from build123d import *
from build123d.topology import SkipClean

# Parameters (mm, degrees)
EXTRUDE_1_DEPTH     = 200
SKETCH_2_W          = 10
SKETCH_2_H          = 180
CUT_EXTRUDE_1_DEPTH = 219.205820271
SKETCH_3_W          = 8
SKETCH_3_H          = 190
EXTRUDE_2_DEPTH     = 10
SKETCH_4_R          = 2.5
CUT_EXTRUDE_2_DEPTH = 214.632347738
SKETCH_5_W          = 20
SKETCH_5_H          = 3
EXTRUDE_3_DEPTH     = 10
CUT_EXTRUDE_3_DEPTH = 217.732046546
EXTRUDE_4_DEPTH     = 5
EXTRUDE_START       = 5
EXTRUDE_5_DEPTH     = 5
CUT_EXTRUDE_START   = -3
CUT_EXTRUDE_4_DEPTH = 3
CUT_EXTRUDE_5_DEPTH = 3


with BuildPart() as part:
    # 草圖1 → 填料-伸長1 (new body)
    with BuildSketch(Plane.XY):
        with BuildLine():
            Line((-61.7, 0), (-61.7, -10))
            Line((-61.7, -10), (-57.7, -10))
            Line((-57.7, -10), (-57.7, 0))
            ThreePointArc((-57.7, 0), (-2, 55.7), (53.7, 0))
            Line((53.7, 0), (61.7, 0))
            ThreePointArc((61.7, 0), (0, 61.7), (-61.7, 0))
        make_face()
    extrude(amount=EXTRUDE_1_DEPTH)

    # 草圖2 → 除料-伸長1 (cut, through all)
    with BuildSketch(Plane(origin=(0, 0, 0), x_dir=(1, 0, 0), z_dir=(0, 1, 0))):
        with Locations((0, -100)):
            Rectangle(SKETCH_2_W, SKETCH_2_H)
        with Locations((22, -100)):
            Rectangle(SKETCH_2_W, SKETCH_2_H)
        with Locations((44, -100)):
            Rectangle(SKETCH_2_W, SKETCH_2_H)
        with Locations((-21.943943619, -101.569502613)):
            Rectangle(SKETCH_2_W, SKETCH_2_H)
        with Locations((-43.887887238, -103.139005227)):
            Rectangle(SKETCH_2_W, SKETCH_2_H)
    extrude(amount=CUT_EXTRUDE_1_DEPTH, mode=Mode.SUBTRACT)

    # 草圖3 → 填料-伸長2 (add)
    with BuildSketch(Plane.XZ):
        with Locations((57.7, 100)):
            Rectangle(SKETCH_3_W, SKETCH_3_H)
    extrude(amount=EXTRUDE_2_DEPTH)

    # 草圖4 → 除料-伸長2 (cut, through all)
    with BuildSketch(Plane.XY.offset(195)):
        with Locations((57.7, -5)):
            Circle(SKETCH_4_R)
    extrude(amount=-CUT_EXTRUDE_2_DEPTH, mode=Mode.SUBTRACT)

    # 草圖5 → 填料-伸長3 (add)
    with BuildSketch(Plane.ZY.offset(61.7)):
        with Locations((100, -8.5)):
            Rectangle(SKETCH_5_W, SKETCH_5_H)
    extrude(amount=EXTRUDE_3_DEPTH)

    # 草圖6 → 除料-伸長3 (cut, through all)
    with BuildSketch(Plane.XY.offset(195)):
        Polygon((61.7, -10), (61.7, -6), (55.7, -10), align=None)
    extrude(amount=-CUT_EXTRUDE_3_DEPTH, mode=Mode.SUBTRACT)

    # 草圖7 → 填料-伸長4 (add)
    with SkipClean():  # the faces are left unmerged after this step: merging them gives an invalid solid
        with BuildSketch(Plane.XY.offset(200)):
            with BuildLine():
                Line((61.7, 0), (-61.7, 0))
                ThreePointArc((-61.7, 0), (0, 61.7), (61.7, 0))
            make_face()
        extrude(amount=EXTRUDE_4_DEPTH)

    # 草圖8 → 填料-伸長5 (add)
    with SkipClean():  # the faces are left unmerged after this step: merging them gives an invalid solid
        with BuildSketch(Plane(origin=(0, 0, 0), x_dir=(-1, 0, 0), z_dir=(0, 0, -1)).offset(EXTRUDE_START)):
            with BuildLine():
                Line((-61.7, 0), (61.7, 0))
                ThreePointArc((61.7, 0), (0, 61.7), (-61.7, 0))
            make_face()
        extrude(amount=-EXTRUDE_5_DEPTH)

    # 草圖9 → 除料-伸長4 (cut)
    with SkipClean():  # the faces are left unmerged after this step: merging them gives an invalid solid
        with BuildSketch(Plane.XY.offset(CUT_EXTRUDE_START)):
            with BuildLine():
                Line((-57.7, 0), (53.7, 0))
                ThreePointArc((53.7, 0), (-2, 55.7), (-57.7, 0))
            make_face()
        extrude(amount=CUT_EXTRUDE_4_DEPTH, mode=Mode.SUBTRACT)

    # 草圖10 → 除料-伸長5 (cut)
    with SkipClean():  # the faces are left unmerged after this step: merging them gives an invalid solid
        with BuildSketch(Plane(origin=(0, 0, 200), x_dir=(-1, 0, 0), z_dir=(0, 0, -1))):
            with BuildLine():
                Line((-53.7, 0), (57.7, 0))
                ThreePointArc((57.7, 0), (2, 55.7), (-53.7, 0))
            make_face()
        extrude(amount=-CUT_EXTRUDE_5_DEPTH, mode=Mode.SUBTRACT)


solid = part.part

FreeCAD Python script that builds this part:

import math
import FreeCAD as App
import Part
import Sketcher
from FreeCAD import Vector

doc = App.newDocument("Part")
body = doc.addObject("PartDesign::Body", "Body")

# Sketch on XY plane
sketch1 = body.newObject("Sketcher::SketchObject", "Sketch")
sketch1.AttachmentSupport = (doc.getObject("XY_Plane"), [""])
sketch1.MapMode = "FlatFace"
sketch1.addGeometry(Part.LineSegment(Vector(-61.7, 0, 0), Vector(-61.7, -10, 0)), False)
sketch1.addGeometry(Part.LineSegment(Vector(-61.7, -10, 0), Vector(-57.7, -10, 0)), False)
sketch1.addGeometry(Part.LineSegment(Vector(-57.7, -10, 0), Vector(-57.7, 0, 0)), False)
sketch1.addGeometry(Part.ArcOfCircle(Part.Circle(Vector(-2, 0, 0), Vector(0, 0, 1), 55.7), math.radians(0), math.radians(180)), False)
sketch1.addGeometry(Part.LineSegment(Vector(53.7, 0, 0), Vector(61.7, 0, 0)), False)
sketch1.addGeometry(Part.ArcOfCircle(Part.Circle(Vector(0, 0, 0), Vector(0, 0, 1), 61.7), math.radians(0), math.radians(180)), False)
sketch1.addConstraint(Sketcher.Constraint("Coincident", 0, 2, 1, 1))
sketch1.addConstraint(Sketcher.Constraint("Coincident", 1, 2, 2, 1))
sketch1.addConstraint(Sketcher.Constraint("Tangent", 2, 2, 3, 2))
sketch1.addConstraint(Sketcher.Constraint("Coincident", 3, 1, 4, 1))
sketch1.addConstraint(Sketcher.Constraint("Coincident", 4, 2, 5, 1))
sketch1.addConstraint(Sketcher.Constraint("Tangent", 5, 2, 0, 1))
sketch1.addConstraint(Sketcher.Constraint("Vertical", 0))
sketch1.addConstraint(Sketcher.Constraint("Horizontal", 1))
sketch1.addConstraint(Sketcher.Constraint("Vertical", 2))
sketch1.addConstraint(Sketcher.Constraint("Horizontal", 4))
sketch1.addConstraint(Sketcher.Constraint("Coincident", 5, 3, -1, 1))
sketch1.addConstraint(Sketcher.Constraint("PointOnObject", 3, 3, -1))
sketch1.addConstraint(Sketcher.Constraint("PointOnObject", 3, 1, -1))
sketch1.addConstraint(Sketcher.Constraint("Radius", 3, 55.7))
sketch1.addConstraint(Sketcher.Constraint("Radius", 5, 61.7))
sketch1.addConstraint(Sketcher.Constraint("DistanceX", 1, 1, 1, 2, 4.0))
sketch1.addConstraint(Sketcher.Constraint("DistanceY", 0, 2, 0, 1, 10.0))
pad1 = body.newObject("PartDesign::Pad", "Pad")
pad1.Profile = sketch1
pad1.Length = 200

# Sketch on XZ plane
sketch2 = body.newObject("Sketcher::SketchObject", "Sketch001")
sketch2.AttachmentSupport = (doc.getObject("XZ_Plane"), [""])
sketch2.MapMode = "FlatFace"
sketch2.addGeometry(Part.LineSegment(Vector(-5, 10, 0), Vector(-5, 190, 0)), False)
sketch2.addGeometry(Part.LineSegment(Vector(-5, 190, 0), Vector(5, 190, 0)), False)
sketch2.addGeometry(Part.LineSegment(Vector(5, 190, 0), Vector(5, 10, 0)), False)
sketch2.addGeometry(Part.LineSegment(Vector(5, 10, 0), Vector(-5, 10, 0)), False)
sketch2.addGeometry(Part.LineSegment(Vector(17, 10, 0), Vector(17, 190, 0)), False)
sketch2.addGeometry(Part.LineSegment(Vector(17, 190, 0), Vector(27, 190, 0)), False)
sketch2.addGeometry(Part.LineSegment(Vector(27, 190, 0), Vector(27, 10, 0)), False)
sketch2.addGeometry(Part.LineSegment(Vector(27, 10, 0), Vector(17, 10, 0)), False)
sketch2.addGeometry(Part.LineSegment(Vector(39, 10, 0), Vector(39, 190, 0)), False)
sketch2.addGeometry(Part.LineSegment(Vector(39, 190, 0), Vector(49, 190, 0)), False)
sketch2.addGeometry(Part.LineSegment(Vector(49, 190, 0), Vector(49, 10, 0)), False)
sketch2.addGeometry(Part.LineSegment(Vector(49, 10, 0), Vector(39, 10, 0)), False)
sketch2.addGeometry(Part.LineSegment(Vector(-27, 12, 0), Vector(-27, 192, 0)), False)
sketch2.addGeometry(Part.LineSegment(Vector(-27, 192, 0), Vector(-17, 192, 0)), False)
sketch2.addGeometry(Part.LineSegment(Vector(-17, 192, 0), Vector(-17, 12, 0)), False)
sketch2.addGeometry(Part.LineSegment(Vector(-17, 12, 0), Vector(-27, 12, 0)), False)
sketch2.addGeometry(Part.LineSegment(Vector(-49, 13, 0), Vector(-49, 193, 0)), False)
sketch2.addGeometry(Part.LineSegment(Vector(-49, 193, 0), Vector(-39, 193, 0)), False)
sketch2.addGeometry(Part.LineSegment(Vector(-39, 193, 0), Vector(-39, 13, 0)), False)
sketch2.addGeometry(Part.LineSegment(Vector(-39, 13, 0), Vector(-49, 13, 0)), False)
sketch2.addConstraint(Sketcher.Constraint("Coincident", 0, 2, 1, 1))
sketch2.addConstraint(Sketcher.Constraint("Coincident", 1, 2, 2, 1))
sketch2.addConstraint(Sketcher.Constraint("Coincident", 2, 2, 3, 1))
sketch2.addConstraint(Sketcher.Constraint("Coincident", 3, 2, 0, 1))
sketch2.addConstraint(Sketcher.Constraint("Coincident", 4, 2, 5, 1))
sketch2.addConstraint(Sketcher.Constraint("Coincident", 5, 2, 6, 1))
sketch2.addConstraint(Sketcher.Constraint("Coincident", 6, 2, 7, 1))
sketch2.addConstraint(Sketcher.Constraint("Coincident", 7, 2, 4, 1))
sketch2.addConstraint(Sketcher.Constraint("Coincident", 8, 2, 9, 1))
sketch2.addConstraint(Sketcher.Constraint("Coincident", 9, 2, 10, 1))
sketch2.addConstraint(Sketcher.Constraint("Coincident", 10, 2, 11, 1))
sketch2.addConstraint(Sketcher.Constraint("Coincident", 11, 2, 8, 1))
sketch2.addConstraint(Sketcher.Constraint("Coincident", 12, 2, 13, 1))
sketch2.addConstraint(Sketcher.Constraint("Coincident", 13, 2, 14, 1))
sketch2.addConstraint(Sketcher.Constraint("Coincident", 14, 2, 15, 1))
sketch2.addConstraint(Sketcher.Constraint("Coincident", 15, 2, 12, 1))
sketch2.addConstraint(Sketcher.Constraint("Coincident", 16, 2, 17, 1))
sketch2.addConstraint(Sketcher.Constraint("Coincident", 17, 2, 18, 1))
sketch2.addConstraint(Sketcher.Constraint("Coincident", 18, 2, 19, 1))
sketch2.addConstraint(Sketcher.Constraint("Coincident", 19, 2, 16, 1))
sketch2.addConstraint(Sketcher.Constraint("Vertical", 0))
sketch2.addConstraint(Sketcher.Constraint("Horizontal", 1))
sketch2.addConstraint(Sketcher.Constraint("Vertical", 2))
sketch2.addConstraint(Sketcher.Constraint("Horizontal", 3))
sketch2.addConstraint(Sketcher.Constraint("Vertical", 4))
sketch2.addConstraint(Sketcher.Constraint("Horizontal", 5))
sketch2.addConstraint(Sketcher.Constraint("Vertical", 6))
sketch2.addConstraint(Sketcher.Constraint("Horizontal", 7))
sketch2.addConstraint(Sketcher.Constraint("Vertical", 8))
sketch2.addConstraint(Sketcher.Constraint("Horizontal", 9))
sketch2.addConstraint(Sketcher.Constraint("Vertical", 10))
sketch2.addConstraint(Sketcher.Constraint("Horizontal", 11))
sketch2.addConstraint(Sketcher.Constraint("Vertical", 12))
sketch2.addConstraint(Sketcher.Constraint("Horizontal", 13))
sketch2.addConstraint(Sketcher.Constraint("Vertical", 14))
sketch2.addConstraint(Sketcher.Constraint("Horizontal", 15))
sketch2.addConstraint(Sketcher.Constraint("Vertical", 16))
sketch2.addConstraint(Sketcher.Constraint("Horizontal", 17))
sketch2.addConstraint(Sketcher.Constraint("Vertical", 18))
sketch2.addConstraint(Sketcher.Constraint("Horizontal", 19))
sketch2.addConstraint(Sketcher.Constraint("Horizontal", 1, 2, 4, 2))
sketch2.addConstraint(Sketcher.Constraint("Horizontal", 3, 2, 6, 2))
sketch2.addConstraint(Sketcher.Constraint("Horizontal", 5, 2, 8, 2))
sketch2.addConstraint(Sketcher.Constraint("Horizontal", 7, 2, 10, 2))
sketch2.addConstraint(Sketcher.Constraint("Equal", 3, 5))
sketch2.addConstraint(Sketcher.Constraint("Equal", 7, 9))
sketch2.addConstraint(Sketcher.Constraint("Equal", 11, 13))
sketch2.addConstraint(Sketcher.Constraint("Equal", 15, 17))
sketch2.addConstraint(Sketcher.Constraint("Equal", 10, 12))
sketch2.addConstraint(Sketcher.Constraint("Equal", 14, 16))
sketch2.addConstraint(Sketcher.Constraint("DistanceX", 1, 1, 1, 2, 10.0))
sketch2.addConstraint(Sketcher.Constraint("DistanceY", 0, 1, 0, 2, 180.0))
sketch2.addConstraint(Sketcher.Constraint("DistanceX", 0, 2, -1, 1, 5.0))
sketch2.addConstraint(Sketcher.Constraint("DistanceY", -1, 1, 0, 2, 190.0))
sketch2.addConstraint(Sketcher.Constraint("DistanceX", -1, 1, 4, 2, 17.0))
sketch2.addConstraint(Sketcher.Constraint("DistanceX", -1, 1, 8, 2, 39.0))
sketch2.addConstraint(Sketcher.Constraint("DistanceX", 12, 2, -1, 1, 26.943944))
sketch2.addConstraint(Sketcher.Constraint("DistanceY", -1, 1, 12, 2, 191.569503))
sketch2.addConstraint(Sketcher.Constraint("DistanceX", 16, 2, -1, 1, 48.887887))
sketch2.addConstraint(Sketcher.Constraint("DistanceY", -1, 1, 16, 2, 193.139005))
pocket1 = body.newObject("PartDesign::Pocket", "Pocket")
pocket1.Profile = sketch2
pocket1.Type = "ThroughAll"

# Sketch on XZ plane
sketch3 = body.newObject("Sketcher::SketchObject", "Sketch002")
sketch3.AttachmentSupport = (doc.getObject("XZ_Plane"), [""])
sketch3.MapMode = "FlatFace"
sketch3.addGeometry(Part.LineSegment(Vector(54, 195, 0), Vector(54, 5, 0)), False)
sketch3.addGeometry(Part.LineSegment(Vector(54, 5, 0), Vector(62, 5, 0)), False)
sketch3.addGeometry(Part.LineSegment(Vector(62, 5, 0), Vector(62, 195, 0)), False)
sketch3.addGeometry(Part.LineSegment(Vector(62, 195, 0), Vector(54, 195, 0)), False)
sketch3.addConstraint(Sketcher.Constraint("Coincident", 0, 2, 1, 1))
sketch3.addConstraint(Sketcher.Constraint("Coincident", 1, 2, 2, 1))
sketch3.addConstraint(Sketcher.Constraint("Coincident", 2, 2, 3, 1))
sketch3.addConstraint(Sketcher.Constraint("Coincident", 3, 2, 0, 1))
sketch3.addConstraint(Sketcher.Constraint("Vertical", 0))
sketch3.addConstraint(Sketcher.Constraint("Horizontal", 1))
sketch3.addConstraint(Sketcher.Constraint("Vertical", 2))
sketch3.addConstraint(Sketcher.Constraint("Horizontal", 3))
sketch3.addConstraint(Sketcher.Constraint("DistanceX", 1, 1, 1, 2, 8.0))
sketch3.addConstraint(Sketcher.Constraint("DistanceY", 0, 2, 0, 1, 190.0))
sketch3.addConstraint(Sketcher.Constraint("DistanceY", -1, 1, 0, 2, 5.0))
sketch3.addConstraint(Sketcher.Constraint("DistanceX", -1, 1, 0, 2, 53.7))
pad2 = body.newObject("PartDesign::Pad", "Pad001")
pad2.Profile = sketch3
pad2.Length = 10

# Sketch on XY plane
sketch4 = body.newObject("Sketcher::SketchObject", "Sketch003")
sketch4.AttachmentSupport = (doc.getObject("XY_Plane"), [""])
sketch4.MapMode = "FlatFace"
sketch4.AttachmentOffset = App.Placement(Vector(0, 0, 195), App.Rotation())
sketch4.addGeometry(Part.Circle(Vector(57.7, -5, 0), Vector(0, 0, 1), 2.5), False)
sketch4.addConstraint(Sketcher.Constraint("Diameter", 0, 5.0))
sketch4.addConstraint(Sketcher.Constraint("DistanceY", 0, 3, -1, 1, 5.0))
sketch4.addConstraint(Sketcher.Constraint("DistanceX", -1, 1, 0, 3, 57.7))
pocket2 = body.newObject("PartDesign::Pocket", "Pocket001")
pocket2.Profile = sketch4
pocket2.Type = "ThroughAll"

# Sketch on YZ plane
sketch5 = body.newObject("Sketcher::SketchObject", "Sketch004")
sketch5.AttachmentSupport = (doc.getObject("YZ_Plane"), [""])
sketch5.MapMode = "FlatFace"
sketch5.AttachmentOffset = App.Placement(Vector(0, 0, -61.7), App.Rotation())
sketch5.addGeometry(Part.LineSegment(Vector(-7, 90, 0), Vector(-10, 90, 0)), False)
sketch5.addGeometry(Part.LineSegment(Vector(-10, 90, 0), Vector(-10, 110, 0)), False)
sketch5.addGeometry(Part.LineSegment(Vector(-10, 110, 0), Vector(-7, 110, 0)), False)
sketch5.addGeometry(Part.LineSegment(Vector(-7, 110, 0), Vector(-7, 90, 0)), False)
sketch5.addConstraint(Sketcher.Constraint("Coincident", 0, 2, 1, 1))
sketch5.addConstraint(Sketcher.Constraint("Coincident", 1, 2, 2, 1))
sketch5.addConstraint(Sketcher.Constraint("Coincident", 2, 2, 3, 1))
sketch5.addConstraint(Sketcher.Constraint("Coincident", 3, 2, 0, 1))
sketch5.addConstraint(Sketcher.Constraint("Horizontal", 0))
sketch5.addConstraint(Sketcher.Constraint("Vertical", 1))
sketch5.addConstraint(Sketcher.Constraint("Horizontal", 2))
sketch5.addConstraint(Sketcher.Constraint("Vertical", 3))
sketch5.addConstraint(Sketcher.Constraint("DistanceX", 0, 2, 0, 1, 3.0))
sketch5.addConstraint(Sketcher.Constraint("DistanceY", 1, 1, 1, 2, 20.0))
sketch5.addConstraint(Sketcher.Constraint("DistanceX", 0, 2, -1, 1, 10.0))
sketch5.addConstraint(Sketcher.Constraint("DistanceY", -1, 1, 0, 2, 90.0))
pad3 = body.newObject("PartDesign::Pad", "Pad002")
pad3.Profile = sketch5
pad3.Length = 10
pad3.Reversed = True

# Sketch on XY plane
sketch6 = body.newObject("Sketcher::SketchObject", "Sketch005")
sketch6.AttachmentSupport = (doc.getObject("XY_Plane"), [""])
sketch6.MapMode = "FlatFace"
sketch6.AttachmentOffset = App.Placement(Vector(0, 0, 195), App.Rotation())
sketch6.addGeometry(Part.LineSegment(Vector(61.7, -10, 0), Vector(61.7, -6, 0)), False)
sketch6.addGeometry(Part.LineSegment(Vector(61.7, -6, 0), Vector(55.7, -10, 0)), False)
sketch6.addGeometry(Part.LineSegment(Vector(55.7, -10, 0), Vector(61.7, -10, 0)), False)
sketch6.addConstraint(Sketcher.Constraint("Coincident", 0, 2, 1, 1))
sketch6.addConstraint(Sketcher.Constraint("Coincident", 1, 2, 2, 1))
sketch6.addConstraint(Sketcher.Constraint("Coincident", 2, 2, 0, 1))
sketch6.addConstraint(Sketcher.Constraint("Vertical", 0))
sketch6.addConstraint(Sketcher.Constraint("Horizontal", 2))
sketch6.addConstraint(Sketcher.Constraint("DistanceX", 2, 1, 2, 2, 6.0))
sketch6.addConstraint(Sketcher.Constraint("DistanceY", 0, 1, 0, 2, 4.0))
sketch6.addConstraint(Sketcher.Constraint("DistanceY", 0, 2, -1, 1, 6.0))
sketch6.addConstraint(Sketcher.Constraint("DistanceX", -1, 1, 0, 2, 61.7))
pocket3 = body.newObject("PartDesign::Pocket", "Pocket002")
pocket3.Profile = sketch6
pocket3.Type = "ThroughAll"

# Sketch on XY plane
sketch7 = body.newObject("Sketcher::SketchObject", "Sketch006")
sketch7.AttachmentSupport = (doc.getObject("XY_Plane"), [""])
sketch7.MapMode = "FlatFace"
sketch7.AttachmentOffset = App.Placement(Vector(0, 0, 200), App.Rotation())
sketch7.addGeometry(Part.LineSegment(Vector(-62, 0, 0), Vector(62, 0, 0)), False)
sketch7.addGeometry(Part.ArcOfCircle(Part.Circle(Vector(0, 0, 0), Vector(0, 0, 1), 62), math.radians(0), math.radians(180)), False)
sketch7.addConstraint(Sketcher.Constraint("Coincident", 0, 1, 1, 2))
sketch7.addConstraint(Sketcher.Constraint("Coincident", 1, 1, 0, 2))
sketch7.addConstraint(Sketcher.Constraint("Horizontal", 0))
sketch7.addConstraint(Sketcher.Constraint("Coincident", 1, 3, -1, 1))
sketch7.addConstraint(Sketcher.Constraint("PointOnObject", 0, 1, -1))
sketch7.addConstraint(Sketcher.Constraint("Radius", 1, 61.7))
pad4 = body.newObject("PartDesign::Pad", "Pad003")
pad4.Profile = sketch7
pad4.Length = 5

# Sketch on XY plane
sketch8 = body.newObject("Sketcher::SketchObject", "Sketch007")
sketch8.AttachmentSupport = (doc.getObject("XY_Plane"), [""])
sketch8.MapMode = "FlatFace"
sketch8.AttachmentOffset = App.Placement(Vector(0, 0, -5), App.Rotation())
sketch8.addGeometry(Part.LineSegment(Vector(62, 0, 0), Vector(-62, 0, 0)), False)
sketch8.addGeometry(Part.ArcOfCircle(Part.Circle(Vector(0, 0, 0), Vector(0, 0, 1), 62), math.radians(0), math.radians(180)), False)
sketch8.addConstraint(Sketcher.Constraint("Coincident", 0, 1, 1, 1))
sketch8.addConstraint(Sketcher.Constraint("Coincident", 1, 2, 0, 2))
sketch8.addConstraint(Sketcher.Constraint("Horizontal", 0))
sketch8.addConstraint(Sketcher.Constraint("Coincident", 1, 3, -1, 1))
sketch8.addConstraint(Sketcher.Constraint("PointOnObject", 0, 1, -1))
sketch8.addConstraint(Sketcher.Constraint("Radius", 1, 61.7))
pad5 = body.newObject("PartDesign::Pad", "Pad004")
pad5.Profile = sketch8
pad5.Length = 5

# Sketch on XY plane
sketch9 = body.newObject("Sketcher::SketchObject", "Sketch008")
sketch9.AttachmentSupport = (doc.getObject("XY_Plane"), [""])
sketch9.MapMode = "FlatFace"
sketch9.AttachmentOffset = App.Placement(Vector(0, 0, -3), App.Rotation())
sketch9.addGeometry(Part.LineSegment(Vector(-58, 0, 0), Vector(54, 0, 0)), False)
sketch9.addGeometry(Part.ArcOfCircle(Part.Circle(Vector(-2, 0, 0), Vector(0, 0, 1), 56), math.radians(0), math.radians(180)), False)
sketch9.addConstraint(Sketcher.Constraint("Coincident", 0, 1, 1, 2))
sketch9.addConstraint(Sketcher.Constraint("Coincident", 1, 1, 0, 2))
sketch9.addConstraint(Sketcher.Constraint("Horizontal", 0))
sketch9.addConstraint(Sketcher.Constraint("PointOnObject", 1, 3, -1))
sketch9.addConstraint(Sketcher.Constraint("PointOnObject", 0, 1, -1))
sketch9.addConstraint(Sketcher.Constraint("Radius", 1, 55.7))
sketch9.addConstraint(Sketcher.Constraint("DistanceX", 1, 3, -1, 1, 2.0))
pocket4 = body.newObject("PartDesign::Pocket", "Pocket003")
pocket4.Profile = sketch9
pocket4.Length = 3
pocket4.Reversed = True

# Sketch on XY plane
sketch10 = body.newObject("Sketcher::SketchObject", "Sketch009")
sketch10.AttachmentSupport = (doc.getObject("XY_Plane"), [""])
sketch10.MapMode = "FlatFace"
sketch10.AttachmentOffset = App.Placement(Vector(0, 0, 200), App.Rotation())
sketch10.addGeometry(Part.LineSegment(Vector(54, 0, 0), Vector(-58, 0, 0)), False)
sketch10.addGeometry(Part.ArcOfCircle(Part.Circle(Vector(-2, 0, 0), Vector(0, 0, 1), 56), math.radians(0), math.radians(180)), False)
sketch10.addConstraint(Sketcher.Constraint("Coincident", 0, 1, 1, 1))
sketch10.addConstraint(Sketcher.Constraint("Coincident", 1, 2, 0, 2))
sketch10.addConstraint(Sketcher.Constraint("Horizontal", 0))
sketch10.addConstraint(Sketcher.Constraint("PointOnObject", 1, 3, -1))
sketch10.addConstraint(Sketcher.Constraint("PointOnObject", 0, 1, -1))
sketch10.addConstraint(Sketcher.Constraint("Radius", 1, 55.7))
sketch10.addConstraint(Sketcher.Constraint("DistanceX", 1, 3, -1, 1, 2.0))
pocket5 = body.newObject("PartDesign::Pocket", "Pocket004")
pocket5.Profile = sketch10
pocket5.Length = 3
pocket5.Reversed = True

doc.recompute()
